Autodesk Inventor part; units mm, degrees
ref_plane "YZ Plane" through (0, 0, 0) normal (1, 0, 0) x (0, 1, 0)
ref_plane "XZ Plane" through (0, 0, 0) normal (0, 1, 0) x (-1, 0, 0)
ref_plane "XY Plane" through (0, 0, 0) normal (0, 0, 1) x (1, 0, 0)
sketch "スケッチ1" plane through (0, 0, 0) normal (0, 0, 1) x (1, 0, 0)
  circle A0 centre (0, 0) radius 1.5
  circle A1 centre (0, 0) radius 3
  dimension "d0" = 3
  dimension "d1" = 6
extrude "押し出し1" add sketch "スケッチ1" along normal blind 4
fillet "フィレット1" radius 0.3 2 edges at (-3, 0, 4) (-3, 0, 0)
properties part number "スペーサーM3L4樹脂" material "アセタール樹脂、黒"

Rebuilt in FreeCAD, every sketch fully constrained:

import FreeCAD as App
import Part
import Sketcher


def edges_at(feature, points):
    """Names of the edges that pass closest to the given points."""
    edges = feature.Shape.Edges
    near = lambda p: min(range(len(edges)), key=lambda i: edges[i].distToShape(Part.Vertex(*p))[0])
    return sorted({f"Edge{near(p) + 1}" for p in points})

doc = App.newDocument("Part")
params = doc.addObject("Spreadsheet::Sheet", "Params")
for row, (alias, value) in enumerate([
    ("sketch1_diameter", "6 mm"),
    ("sketch1_diameter2", "3 mm"),
    ("pad1_length", "4 mm"),
    ("fillet_radius", "0.3 mm"),
], start=1):
    params.set(f"A{row}", alias)
    params.set(f"B{row}", "=" + value)
    params.setAlias(f"B{row}", alias)

body = doc.addObject("PartDesign::Body", "Body")

sketch1 = body.newObject("Sketcher::SketchObject", "Sketch")
sketch1.AttachmentSupport = (doc.getObject("XY_Plane"), [""])
sketch1.MapMode = "FlatFace"
sketch1.addGeometry([
    Part.Circle(App.Vector(0, 0, 0), App.Vector(0, 0, 1), 3),
    Part.Circle(App.Vector(0, 0, 0), App.Vector(0, 0, 1), 1.5),
], False)
sketch1.addConstraint([
    Sketcher.Constraint("Coincident", 0, 3, -1, 1),
    Sketcher.Constraint("Coincident", 1, 3, -1, 1),
    Sketcher.Constraint("Diameter", 0, 6.0),
    Sketcher.Constraint("Diameter", 1, 3.0),
])
sketch1.setExpression("Constraints[2]", "Params.sketch1_diameter")
sketch1.setExpression("Constraints[3]", "Params.sketch1_diameter2")
pad1 = body.newObject("PartDesign::Pad", "Pad")
pad1.Profile = sketch1
pad1.setExpression("Length", "Params.pad1_length")
doc.recompute()

fillet = body.newObject("PartDesign::Fillet", "Fillet")
fillet.Base = (pad1, edges_at(pad1, [(-3, 0, 4), (-3, 0, 0)]))
fillet.setExpression("Radius", "Params.fillet_radius")

doc.recompute()
